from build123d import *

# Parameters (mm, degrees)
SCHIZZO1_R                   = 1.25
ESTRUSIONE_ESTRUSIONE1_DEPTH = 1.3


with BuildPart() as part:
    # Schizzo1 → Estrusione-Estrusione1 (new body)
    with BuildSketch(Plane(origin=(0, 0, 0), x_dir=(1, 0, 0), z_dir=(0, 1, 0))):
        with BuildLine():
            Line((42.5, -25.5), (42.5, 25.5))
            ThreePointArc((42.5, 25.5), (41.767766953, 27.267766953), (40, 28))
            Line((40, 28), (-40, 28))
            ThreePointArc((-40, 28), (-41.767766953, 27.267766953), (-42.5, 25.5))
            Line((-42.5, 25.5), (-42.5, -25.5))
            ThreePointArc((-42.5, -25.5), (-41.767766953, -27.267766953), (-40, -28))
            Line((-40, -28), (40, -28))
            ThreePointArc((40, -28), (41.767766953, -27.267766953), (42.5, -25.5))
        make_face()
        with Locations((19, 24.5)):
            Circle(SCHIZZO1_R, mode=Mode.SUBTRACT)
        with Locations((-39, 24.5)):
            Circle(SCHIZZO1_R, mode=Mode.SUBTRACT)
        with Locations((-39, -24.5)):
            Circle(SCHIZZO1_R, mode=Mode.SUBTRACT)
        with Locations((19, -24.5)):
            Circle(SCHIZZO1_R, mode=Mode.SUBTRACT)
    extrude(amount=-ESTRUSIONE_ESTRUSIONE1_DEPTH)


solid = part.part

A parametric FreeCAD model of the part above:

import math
import FreeCAD as App
import Part
import Sketcher
from FreeCAD import Vector

doc = App.newDocument("Part")
body = doc.addObject("PartDesign::Body", "Body")

sketch1 = doc.addObject("Sketcher::SketchObject", "Sketch")
body.addObject(sketch1)
sketch1.AttachmentSupport = (doc.XZ_Plane, [""])
sketch1.MapMode = "FlatFace"
sketch1.addGeometry([
    Part.LineSegment(Vector(42.5, 25.5, 0), Vector(42.5, -25.5, 0)),
    Part.ArcOfCircle(Part.Circle(Vector(40, -25.5, 0), Vector(0, 0, 1), 2.5), math.radians(-90), math.radians(0)),
    Part.LineSegment(Vector(40, -28, 0), Vector(-40, -28, 0)),
    Part.ArcOfCircle(Part.Circle(Vector(-40, -25.5, 0), Vector(0, 0, 1), 2.5), math.radians(180), math.radians(270)),
    Part.LineSegment(Vector(-42.5, -25.5, 0), Vector(-42.5, 25.5, 0)),
    Part.ArcOfCircle(Part.Circle(Vector(-40, 25.5, 0), Vector(0, 0, 1), 2.5), math.radians(90), math.radians(180)),
    Part.LineSegment(Vector(-40, 28, 0), Vector(40, 28, 0)),
    Part.ArcOfCircle(Part.Circle(Vector(40, 25.5, 0), Vector(0, 0, 1), 2.5), math.radians(0), math.radians(90)),
    Part.Circle(Vector(-39, 24.5, 0), Vector(0, 0, 1), 1.2),
    Part.Circle(Vector(19, 24.5, 0), Vector(0, 0, 1), 1.2),
    Part.Circle(Vector(-39, -24.5, 0), Vector(0, 0, 1), 1.2),
    Part.Circle(Vector(19, -24.5, 0), Vector(0, 0, 1), 1.2),
], False)
sketch1.addConstraint([
    Sketcher.Constraint("Tangent", 0, 2, 1, 2),
    Sketcher.Constraint("Tangent", 1, 1, 2, 1),
    Sketcher.Constraint("Tangent", 2, 2, 3, 2),
    Sketcher.Constraint("Tangent", 3, 1, 4, 1),
    Sketcher.Constraint("Tangent", 4, 2, 5, 2),
    Sketcher.Constraint("Tangent", 5, 1, 6, 1),
    Sketcher.Constraint("Tangent", 6, 2, 7, 2),
    Sketcher.Constraint("Tangent", 7, 1, 0, 1),
    Sketcher.Constraint("Vertical", 0),
    Sketcher.Constraint("Horizontal", 2),
    Sketcher.Constraint("Vertical", 4),
    Sketcher.Constraint("Horizontal", 6),
    Sketcher.Constraint("Equal", 1, 3),
    Sketcher.Constraint("Equal", 3, 5),
    Sketcher.Constraint("Equal", 5, 7),
    Sketcher.Constraint("Equal", 8, 9),
    Sketcher.Constraint("Equal", 9, 10),
    Sketcher.Constraint("Equal", 10, 11),
    Sketcher.Constraint("Symmetric", 1, 3, 5, 3, -1, 1),
    Sketcher.Constraint("Symmetric", 8, 3, 10, 3, -1),
    Sketcher.Constraint("Symmetric", 9, 3, 11, 3, -1),
    Sketcher.Constraint("Horizontal", 8, 3, 9, 3),
    Sketcher.Constraint("Diameter", 8, 2.5),
    Sketcher.Constraint("Radius", 1, 2.5),
    Sketcher.Constraint("DistanceX", 2, 2, 2, 1, 80.0),
    Sketcher.Constraint("DistanceY", 0, 2, 0, 1, 51.0),
    Sketcher.Constraint("DistanceX", 8, 3, -1, 1, 39.0),
    Sketcher.Constraint("DistanceX", -1, 1, 9, 3, 19.0),
    Sketcher.Constraint("DistanceY", 8, 3, 5, 3, 1.0),
])
pad1 = doc.addObject("PartDesign::Pad", "Pad")
body.addObject(pad1)
pad1.Profile = sketch1
pad1.Length = 1.3

doc.recompute()
